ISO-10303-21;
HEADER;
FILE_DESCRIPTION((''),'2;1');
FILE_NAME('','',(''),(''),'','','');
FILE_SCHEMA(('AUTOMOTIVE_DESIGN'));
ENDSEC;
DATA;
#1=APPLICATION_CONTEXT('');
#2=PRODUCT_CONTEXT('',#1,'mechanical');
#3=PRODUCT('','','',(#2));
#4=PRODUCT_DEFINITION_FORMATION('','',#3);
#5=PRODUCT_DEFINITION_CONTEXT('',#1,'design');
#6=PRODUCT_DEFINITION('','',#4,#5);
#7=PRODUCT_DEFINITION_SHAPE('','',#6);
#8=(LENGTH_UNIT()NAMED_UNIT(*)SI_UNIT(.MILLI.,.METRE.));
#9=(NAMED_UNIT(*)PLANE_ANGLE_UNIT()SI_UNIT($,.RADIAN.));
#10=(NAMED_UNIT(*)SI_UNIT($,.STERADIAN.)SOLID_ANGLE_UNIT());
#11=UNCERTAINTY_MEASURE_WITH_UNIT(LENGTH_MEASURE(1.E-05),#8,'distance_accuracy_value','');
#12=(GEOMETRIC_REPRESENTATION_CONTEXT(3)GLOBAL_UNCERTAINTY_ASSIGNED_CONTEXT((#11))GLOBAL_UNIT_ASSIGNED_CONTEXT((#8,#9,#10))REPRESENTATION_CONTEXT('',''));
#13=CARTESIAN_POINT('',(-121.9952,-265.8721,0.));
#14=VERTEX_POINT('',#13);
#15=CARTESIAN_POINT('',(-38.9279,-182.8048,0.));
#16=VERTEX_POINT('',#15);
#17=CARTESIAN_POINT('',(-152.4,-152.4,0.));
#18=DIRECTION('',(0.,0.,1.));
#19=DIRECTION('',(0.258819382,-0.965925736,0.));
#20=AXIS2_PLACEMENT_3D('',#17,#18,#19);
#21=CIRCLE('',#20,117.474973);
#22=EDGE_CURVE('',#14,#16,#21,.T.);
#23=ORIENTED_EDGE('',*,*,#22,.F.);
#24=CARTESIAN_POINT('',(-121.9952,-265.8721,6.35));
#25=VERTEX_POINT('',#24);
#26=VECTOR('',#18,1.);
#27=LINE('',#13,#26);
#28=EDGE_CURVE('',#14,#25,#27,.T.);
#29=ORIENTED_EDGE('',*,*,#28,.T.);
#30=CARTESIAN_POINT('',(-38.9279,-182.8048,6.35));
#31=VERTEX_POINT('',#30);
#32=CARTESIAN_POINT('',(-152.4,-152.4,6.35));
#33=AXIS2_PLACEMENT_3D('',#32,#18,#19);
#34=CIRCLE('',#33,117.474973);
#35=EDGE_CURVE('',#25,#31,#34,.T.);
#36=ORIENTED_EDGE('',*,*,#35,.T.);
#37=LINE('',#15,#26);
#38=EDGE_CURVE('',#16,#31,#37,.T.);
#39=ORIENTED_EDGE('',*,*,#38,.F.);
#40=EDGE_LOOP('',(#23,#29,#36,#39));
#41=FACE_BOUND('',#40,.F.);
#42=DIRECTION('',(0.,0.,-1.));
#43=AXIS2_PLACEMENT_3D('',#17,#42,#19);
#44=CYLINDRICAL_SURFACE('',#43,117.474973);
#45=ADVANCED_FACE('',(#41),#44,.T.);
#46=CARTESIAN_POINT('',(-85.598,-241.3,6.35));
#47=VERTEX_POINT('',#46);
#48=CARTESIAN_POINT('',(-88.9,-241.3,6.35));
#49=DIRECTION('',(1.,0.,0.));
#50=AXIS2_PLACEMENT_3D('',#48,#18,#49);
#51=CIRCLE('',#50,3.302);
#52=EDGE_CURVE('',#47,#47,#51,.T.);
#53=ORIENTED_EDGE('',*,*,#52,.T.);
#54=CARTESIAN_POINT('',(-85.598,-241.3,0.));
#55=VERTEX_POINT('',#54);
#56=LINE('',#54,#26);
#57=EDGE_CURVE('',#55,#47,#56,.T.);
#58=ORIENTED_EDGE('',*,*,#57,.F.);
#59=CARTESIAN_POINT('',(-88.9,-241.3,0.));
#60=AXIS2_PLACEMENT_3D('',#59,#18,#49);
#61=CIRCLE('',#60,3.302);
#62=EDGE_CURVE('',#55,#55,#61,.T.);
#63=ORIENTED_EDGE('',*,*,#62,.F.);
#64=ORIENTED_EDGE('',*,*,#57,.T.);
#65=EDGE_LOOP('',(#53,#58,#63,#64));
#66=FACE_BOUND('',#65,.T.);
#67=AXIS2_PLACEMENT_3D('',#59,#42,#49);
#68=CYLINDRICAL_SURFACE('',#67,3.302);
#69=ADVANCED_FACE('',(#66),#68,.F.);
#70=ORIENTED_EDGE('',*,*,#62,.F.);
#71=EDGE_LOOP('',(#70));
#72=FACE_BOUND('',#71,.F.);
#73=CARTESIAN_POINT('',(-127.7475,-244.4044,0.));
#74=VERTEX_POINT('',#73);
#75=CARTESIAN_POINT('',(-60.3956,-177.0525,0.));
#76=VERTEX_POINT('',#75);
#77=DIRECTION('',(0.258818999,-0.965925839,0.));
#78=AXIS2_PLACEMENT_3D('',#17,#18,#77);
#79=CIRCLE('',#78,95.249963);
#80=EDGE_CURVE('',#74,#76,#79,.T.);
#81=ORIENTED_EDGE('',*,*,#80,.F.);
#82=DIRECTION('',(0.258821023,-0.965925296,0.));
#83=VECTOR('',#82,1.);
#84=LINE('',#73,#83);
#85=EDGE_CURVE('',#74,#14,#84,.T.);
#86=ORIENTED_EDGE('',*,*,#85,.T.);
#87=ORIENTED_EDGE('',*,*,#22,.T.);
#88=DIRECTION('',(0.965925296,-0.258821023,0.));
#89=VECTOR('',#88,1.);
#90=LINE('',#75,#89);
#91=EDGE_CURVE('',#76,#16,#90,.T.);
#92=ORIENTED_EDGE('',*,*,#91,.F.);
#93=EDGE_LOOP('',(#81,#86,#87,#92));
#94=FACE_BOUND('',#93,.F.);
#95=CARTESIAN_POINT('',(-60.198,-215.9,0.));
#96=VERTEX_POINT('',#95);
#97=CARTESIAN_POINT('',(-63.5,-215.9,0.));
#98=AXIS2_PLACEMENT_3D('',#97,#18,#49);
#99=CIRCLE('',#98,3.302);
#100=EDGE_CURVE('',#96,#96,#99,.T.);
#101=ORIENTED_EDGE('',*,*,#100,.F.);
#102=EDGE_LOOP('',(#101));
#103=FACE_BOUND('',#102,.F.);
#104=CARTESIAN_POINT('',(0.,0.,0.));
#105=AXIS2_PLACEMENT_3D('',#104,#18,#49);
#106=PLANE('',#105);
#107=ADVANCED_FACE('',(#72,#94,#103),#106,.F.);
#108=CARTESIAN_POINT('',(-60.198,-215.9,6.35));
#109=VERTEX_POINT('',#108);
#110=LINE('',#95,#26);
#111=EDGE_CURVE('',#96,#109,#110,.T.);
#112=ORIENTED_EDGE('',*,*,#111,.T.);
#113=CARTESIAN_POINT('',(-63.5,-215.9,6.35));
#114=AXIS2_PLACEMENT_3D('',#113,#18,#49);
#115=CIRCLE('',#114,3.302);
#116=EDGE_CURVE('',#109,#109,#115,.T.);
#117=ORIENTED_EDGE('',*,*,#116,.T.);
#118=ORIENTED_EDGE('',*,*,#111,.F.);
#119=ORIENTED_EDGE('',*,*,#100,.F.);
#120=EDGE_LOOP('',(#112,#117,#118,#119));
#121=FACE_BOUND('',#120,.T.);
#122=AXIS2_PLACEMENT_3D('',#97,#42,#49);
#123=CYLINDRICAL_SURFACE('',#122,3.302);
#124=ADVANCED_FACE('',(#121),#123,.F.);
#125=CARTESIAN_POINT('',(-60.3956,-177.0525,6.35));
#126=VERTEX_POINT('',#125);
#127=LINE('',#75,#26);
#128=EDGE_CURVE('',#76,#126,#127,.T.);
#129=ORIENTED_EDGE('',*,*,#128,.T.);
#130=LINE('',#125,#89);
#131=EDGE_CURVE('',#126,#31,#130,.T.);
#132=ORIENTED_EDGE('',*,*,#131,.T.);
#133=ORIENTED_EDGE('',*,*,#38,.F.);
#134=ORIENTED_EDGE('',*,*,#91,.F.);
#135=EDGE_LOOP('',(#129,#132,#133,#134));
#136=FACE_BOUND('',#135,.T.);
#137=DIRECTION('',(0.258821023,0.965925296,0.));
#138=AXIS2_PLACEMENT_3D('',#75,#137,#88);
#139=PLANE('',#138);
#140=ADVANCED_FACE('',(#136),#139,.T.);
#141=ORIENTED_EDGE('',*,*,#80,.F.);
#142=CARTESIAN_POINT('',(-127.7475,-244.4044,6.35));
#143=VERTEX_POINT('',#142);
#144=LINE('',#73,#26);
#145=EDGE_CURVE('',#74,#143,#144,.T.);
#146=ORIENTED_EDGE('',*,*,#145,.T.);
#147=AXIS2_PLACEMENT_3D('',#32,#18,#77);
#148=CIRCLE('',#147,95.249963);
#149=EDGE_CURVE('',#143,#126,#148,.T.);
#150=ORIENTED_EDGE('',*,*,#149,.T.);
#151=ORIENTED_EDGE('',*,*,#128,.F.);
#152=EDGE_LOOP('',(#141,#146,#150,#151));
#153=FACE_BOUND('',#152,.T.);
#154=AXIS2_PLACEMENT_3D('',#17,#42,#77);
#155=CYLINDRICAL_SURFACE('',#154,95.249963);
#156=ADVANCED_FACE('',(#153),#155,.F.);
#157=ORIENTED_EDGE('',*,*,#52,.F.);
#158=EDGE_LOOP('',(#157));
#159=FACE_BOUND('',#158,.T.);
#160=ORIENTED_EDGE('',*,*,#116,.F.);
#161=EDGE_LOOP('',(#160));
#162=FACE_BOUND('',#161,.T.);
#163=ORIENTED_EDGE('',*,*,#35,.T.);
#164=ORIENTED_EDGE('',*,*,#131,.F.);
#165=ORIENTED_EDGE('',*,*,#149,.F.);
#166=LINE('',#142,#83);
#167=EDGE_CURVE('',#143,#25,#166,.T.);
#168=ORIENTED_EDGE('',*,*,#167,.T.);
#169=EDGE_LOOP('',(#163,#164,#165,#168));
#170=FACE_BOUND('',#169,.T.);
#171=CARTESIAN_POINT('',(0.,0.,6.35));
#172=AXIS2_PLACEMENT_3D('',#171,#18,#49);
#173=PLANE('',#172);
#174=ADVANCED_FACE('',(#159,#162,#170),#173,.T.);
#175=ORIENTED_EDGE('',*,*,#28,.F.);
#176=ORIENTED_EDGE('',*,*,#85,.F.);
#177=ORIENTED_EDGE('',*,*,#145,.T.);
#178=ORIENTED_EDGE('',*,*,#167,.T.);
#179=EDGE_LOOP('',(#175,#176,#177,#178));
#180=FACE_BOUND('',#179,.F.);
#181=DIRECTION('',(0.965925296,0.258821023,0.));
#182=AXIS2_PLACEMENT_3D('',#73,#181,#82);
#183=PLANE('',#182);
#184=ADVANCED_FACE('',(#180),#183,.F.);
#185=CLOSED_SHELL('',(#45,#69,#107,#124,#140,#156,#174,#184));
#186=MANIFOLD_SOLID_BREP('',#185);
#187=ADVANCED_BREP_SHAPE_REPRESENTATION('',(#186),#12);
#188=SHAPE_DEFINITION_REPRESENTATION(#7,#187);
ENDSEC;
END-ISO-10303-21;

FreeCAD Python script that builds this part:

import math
import FreeCAD as App
import Part
import Sketcher
from FreeCAD import Vector
Q = App.Units.Quantity

doc = App.newDocument("Part")
params = doc.addObject("Spreadsheet::Sheet", "Params")
for row, (alias, value) in enumerate([
    ("sketch1_diameter", "0.26 in"),
    ("sketch1_radius", "3.75 in"),
    ("sketch1_radius2", "4.625 in"),
    ("pad1_length", "0.25 in"),
], start=1):
    params.set(f"A{row}", alias)
    params.set(f"B{row}", "=" + value)
    params.setAlias(f"B{row}", alias)

body = doc.addObject("PartDesign::Body", "Body")

# Sketch on XY plane
sketch1 = doc.addObject("Sketcher::SketchObject", "Sketch")
body.addObject(sketch1)
sketch1.AttachmentSupport = (doc.XY_Plane, [""])
sketch1.MapMode = "FlatFace"
sketch1.addGeometry([
    Part.LineSegment(Vector(-38.9279, -182.8048, 0), Vector(-60.3956, -177.0525, 0)),  # 0
    Part.ArcOfCircle(Part.Circle(Vector(-152.4, -152.4, 0), Vector(0, 0, 1), 95.249963), math.radians(-75.000003), math.radians(-14.999997)),  # 1
    Part.LineSegment(Vector(-127.7475, -244.4044, 0), Vector(-121.9952, -265.8721, 0)),  # 2
    Part.ArcOfCircle(Part.Circle(Vector(-152.4, -152.4, 0), Vector(0, 0, 1), 117.474973), math.radians(-74.99998), math.radians(-15.00002)),  # 3
    Part.Circle(Vector(-88.9, -241.3, 0), Vector(0, 0, 1), 3.302),  # 4
    Part.Circle(Vector(-63.5, -215.9, 0), Vector(0, 0, 1), 3.302),  # 5
], False)
sketch1.addConstraint([
    Sketcher.Constraint("Coincident", 0, 2, 1, 2),
    Sketcher.Constraint("Coincident", 1, 1, 2, 1),
    Sketcher.Constraint("Coincident", 2, 2, 3, 1),
    Sketcher.Constraint("Coincident", 3, 2, 0, 1),
    Sketcher.Constraint("Coincident", 3, 3, 1, 3),
    Sketcher.Constraint("Equal", 4, 5),
    Sketcher.Constraint("Diameter", 4, Q("0.26 in")),
    Sketcher.Constraint("DistanceX", 1, 3, -1, 1, Q("6 in")),
    Sketcher.Constraint("DistanceY", 1, 3, -1, 1, Q("6 in")),
    Sketcher.Constraint("DistanceX", 4, 3, 5, 3, Q("1 in")),
    Sketcher.Constraint("DistanceY", 4, 3, 5, 3, Q("1 in")),
    Sketcher.Constraint("DistanceX", 5, 3, -1, 1, Q("2.5 in")),
    Sketcher.Constraint("DistanceY", 5, 3, -1, 1, Q("8.5 in")),
    Sketcher.Constraint("Radius", 1, Q("3.75 in")),
    Sketcher.Constraint("Angle", 0, Q("165 deg")),
    Sketcher.Constraint("Angle", 2, Q("-75 deg")),
    Sketcher.Constraint("Radius", 3, Q("4.625 in")),
    Sketcher.Constraint("DistanceY", 2, 2, -1, 1, Q("10.4674 in")),
    Sketcher.Constraint("DistanceX", 3, 2, -1, 1, Q("1.5326 in")),
])
sketch1.setExpression("Constraints[6]", "Params.sketch1_diameter")
sketch1.setExpression("Constraints[13]", "Params.sketch1_radius")
sketch1.setExpression("Constraints[16]", "Params.sketch1_radius2")
pad1 = doc.addObject("PartDesign::Pad", "Pad")
body.addObject(pad1)
pad1.Profile = sketch1
pad1.setExpression("Length", "Params.pad1_length")

doc.recompute()
